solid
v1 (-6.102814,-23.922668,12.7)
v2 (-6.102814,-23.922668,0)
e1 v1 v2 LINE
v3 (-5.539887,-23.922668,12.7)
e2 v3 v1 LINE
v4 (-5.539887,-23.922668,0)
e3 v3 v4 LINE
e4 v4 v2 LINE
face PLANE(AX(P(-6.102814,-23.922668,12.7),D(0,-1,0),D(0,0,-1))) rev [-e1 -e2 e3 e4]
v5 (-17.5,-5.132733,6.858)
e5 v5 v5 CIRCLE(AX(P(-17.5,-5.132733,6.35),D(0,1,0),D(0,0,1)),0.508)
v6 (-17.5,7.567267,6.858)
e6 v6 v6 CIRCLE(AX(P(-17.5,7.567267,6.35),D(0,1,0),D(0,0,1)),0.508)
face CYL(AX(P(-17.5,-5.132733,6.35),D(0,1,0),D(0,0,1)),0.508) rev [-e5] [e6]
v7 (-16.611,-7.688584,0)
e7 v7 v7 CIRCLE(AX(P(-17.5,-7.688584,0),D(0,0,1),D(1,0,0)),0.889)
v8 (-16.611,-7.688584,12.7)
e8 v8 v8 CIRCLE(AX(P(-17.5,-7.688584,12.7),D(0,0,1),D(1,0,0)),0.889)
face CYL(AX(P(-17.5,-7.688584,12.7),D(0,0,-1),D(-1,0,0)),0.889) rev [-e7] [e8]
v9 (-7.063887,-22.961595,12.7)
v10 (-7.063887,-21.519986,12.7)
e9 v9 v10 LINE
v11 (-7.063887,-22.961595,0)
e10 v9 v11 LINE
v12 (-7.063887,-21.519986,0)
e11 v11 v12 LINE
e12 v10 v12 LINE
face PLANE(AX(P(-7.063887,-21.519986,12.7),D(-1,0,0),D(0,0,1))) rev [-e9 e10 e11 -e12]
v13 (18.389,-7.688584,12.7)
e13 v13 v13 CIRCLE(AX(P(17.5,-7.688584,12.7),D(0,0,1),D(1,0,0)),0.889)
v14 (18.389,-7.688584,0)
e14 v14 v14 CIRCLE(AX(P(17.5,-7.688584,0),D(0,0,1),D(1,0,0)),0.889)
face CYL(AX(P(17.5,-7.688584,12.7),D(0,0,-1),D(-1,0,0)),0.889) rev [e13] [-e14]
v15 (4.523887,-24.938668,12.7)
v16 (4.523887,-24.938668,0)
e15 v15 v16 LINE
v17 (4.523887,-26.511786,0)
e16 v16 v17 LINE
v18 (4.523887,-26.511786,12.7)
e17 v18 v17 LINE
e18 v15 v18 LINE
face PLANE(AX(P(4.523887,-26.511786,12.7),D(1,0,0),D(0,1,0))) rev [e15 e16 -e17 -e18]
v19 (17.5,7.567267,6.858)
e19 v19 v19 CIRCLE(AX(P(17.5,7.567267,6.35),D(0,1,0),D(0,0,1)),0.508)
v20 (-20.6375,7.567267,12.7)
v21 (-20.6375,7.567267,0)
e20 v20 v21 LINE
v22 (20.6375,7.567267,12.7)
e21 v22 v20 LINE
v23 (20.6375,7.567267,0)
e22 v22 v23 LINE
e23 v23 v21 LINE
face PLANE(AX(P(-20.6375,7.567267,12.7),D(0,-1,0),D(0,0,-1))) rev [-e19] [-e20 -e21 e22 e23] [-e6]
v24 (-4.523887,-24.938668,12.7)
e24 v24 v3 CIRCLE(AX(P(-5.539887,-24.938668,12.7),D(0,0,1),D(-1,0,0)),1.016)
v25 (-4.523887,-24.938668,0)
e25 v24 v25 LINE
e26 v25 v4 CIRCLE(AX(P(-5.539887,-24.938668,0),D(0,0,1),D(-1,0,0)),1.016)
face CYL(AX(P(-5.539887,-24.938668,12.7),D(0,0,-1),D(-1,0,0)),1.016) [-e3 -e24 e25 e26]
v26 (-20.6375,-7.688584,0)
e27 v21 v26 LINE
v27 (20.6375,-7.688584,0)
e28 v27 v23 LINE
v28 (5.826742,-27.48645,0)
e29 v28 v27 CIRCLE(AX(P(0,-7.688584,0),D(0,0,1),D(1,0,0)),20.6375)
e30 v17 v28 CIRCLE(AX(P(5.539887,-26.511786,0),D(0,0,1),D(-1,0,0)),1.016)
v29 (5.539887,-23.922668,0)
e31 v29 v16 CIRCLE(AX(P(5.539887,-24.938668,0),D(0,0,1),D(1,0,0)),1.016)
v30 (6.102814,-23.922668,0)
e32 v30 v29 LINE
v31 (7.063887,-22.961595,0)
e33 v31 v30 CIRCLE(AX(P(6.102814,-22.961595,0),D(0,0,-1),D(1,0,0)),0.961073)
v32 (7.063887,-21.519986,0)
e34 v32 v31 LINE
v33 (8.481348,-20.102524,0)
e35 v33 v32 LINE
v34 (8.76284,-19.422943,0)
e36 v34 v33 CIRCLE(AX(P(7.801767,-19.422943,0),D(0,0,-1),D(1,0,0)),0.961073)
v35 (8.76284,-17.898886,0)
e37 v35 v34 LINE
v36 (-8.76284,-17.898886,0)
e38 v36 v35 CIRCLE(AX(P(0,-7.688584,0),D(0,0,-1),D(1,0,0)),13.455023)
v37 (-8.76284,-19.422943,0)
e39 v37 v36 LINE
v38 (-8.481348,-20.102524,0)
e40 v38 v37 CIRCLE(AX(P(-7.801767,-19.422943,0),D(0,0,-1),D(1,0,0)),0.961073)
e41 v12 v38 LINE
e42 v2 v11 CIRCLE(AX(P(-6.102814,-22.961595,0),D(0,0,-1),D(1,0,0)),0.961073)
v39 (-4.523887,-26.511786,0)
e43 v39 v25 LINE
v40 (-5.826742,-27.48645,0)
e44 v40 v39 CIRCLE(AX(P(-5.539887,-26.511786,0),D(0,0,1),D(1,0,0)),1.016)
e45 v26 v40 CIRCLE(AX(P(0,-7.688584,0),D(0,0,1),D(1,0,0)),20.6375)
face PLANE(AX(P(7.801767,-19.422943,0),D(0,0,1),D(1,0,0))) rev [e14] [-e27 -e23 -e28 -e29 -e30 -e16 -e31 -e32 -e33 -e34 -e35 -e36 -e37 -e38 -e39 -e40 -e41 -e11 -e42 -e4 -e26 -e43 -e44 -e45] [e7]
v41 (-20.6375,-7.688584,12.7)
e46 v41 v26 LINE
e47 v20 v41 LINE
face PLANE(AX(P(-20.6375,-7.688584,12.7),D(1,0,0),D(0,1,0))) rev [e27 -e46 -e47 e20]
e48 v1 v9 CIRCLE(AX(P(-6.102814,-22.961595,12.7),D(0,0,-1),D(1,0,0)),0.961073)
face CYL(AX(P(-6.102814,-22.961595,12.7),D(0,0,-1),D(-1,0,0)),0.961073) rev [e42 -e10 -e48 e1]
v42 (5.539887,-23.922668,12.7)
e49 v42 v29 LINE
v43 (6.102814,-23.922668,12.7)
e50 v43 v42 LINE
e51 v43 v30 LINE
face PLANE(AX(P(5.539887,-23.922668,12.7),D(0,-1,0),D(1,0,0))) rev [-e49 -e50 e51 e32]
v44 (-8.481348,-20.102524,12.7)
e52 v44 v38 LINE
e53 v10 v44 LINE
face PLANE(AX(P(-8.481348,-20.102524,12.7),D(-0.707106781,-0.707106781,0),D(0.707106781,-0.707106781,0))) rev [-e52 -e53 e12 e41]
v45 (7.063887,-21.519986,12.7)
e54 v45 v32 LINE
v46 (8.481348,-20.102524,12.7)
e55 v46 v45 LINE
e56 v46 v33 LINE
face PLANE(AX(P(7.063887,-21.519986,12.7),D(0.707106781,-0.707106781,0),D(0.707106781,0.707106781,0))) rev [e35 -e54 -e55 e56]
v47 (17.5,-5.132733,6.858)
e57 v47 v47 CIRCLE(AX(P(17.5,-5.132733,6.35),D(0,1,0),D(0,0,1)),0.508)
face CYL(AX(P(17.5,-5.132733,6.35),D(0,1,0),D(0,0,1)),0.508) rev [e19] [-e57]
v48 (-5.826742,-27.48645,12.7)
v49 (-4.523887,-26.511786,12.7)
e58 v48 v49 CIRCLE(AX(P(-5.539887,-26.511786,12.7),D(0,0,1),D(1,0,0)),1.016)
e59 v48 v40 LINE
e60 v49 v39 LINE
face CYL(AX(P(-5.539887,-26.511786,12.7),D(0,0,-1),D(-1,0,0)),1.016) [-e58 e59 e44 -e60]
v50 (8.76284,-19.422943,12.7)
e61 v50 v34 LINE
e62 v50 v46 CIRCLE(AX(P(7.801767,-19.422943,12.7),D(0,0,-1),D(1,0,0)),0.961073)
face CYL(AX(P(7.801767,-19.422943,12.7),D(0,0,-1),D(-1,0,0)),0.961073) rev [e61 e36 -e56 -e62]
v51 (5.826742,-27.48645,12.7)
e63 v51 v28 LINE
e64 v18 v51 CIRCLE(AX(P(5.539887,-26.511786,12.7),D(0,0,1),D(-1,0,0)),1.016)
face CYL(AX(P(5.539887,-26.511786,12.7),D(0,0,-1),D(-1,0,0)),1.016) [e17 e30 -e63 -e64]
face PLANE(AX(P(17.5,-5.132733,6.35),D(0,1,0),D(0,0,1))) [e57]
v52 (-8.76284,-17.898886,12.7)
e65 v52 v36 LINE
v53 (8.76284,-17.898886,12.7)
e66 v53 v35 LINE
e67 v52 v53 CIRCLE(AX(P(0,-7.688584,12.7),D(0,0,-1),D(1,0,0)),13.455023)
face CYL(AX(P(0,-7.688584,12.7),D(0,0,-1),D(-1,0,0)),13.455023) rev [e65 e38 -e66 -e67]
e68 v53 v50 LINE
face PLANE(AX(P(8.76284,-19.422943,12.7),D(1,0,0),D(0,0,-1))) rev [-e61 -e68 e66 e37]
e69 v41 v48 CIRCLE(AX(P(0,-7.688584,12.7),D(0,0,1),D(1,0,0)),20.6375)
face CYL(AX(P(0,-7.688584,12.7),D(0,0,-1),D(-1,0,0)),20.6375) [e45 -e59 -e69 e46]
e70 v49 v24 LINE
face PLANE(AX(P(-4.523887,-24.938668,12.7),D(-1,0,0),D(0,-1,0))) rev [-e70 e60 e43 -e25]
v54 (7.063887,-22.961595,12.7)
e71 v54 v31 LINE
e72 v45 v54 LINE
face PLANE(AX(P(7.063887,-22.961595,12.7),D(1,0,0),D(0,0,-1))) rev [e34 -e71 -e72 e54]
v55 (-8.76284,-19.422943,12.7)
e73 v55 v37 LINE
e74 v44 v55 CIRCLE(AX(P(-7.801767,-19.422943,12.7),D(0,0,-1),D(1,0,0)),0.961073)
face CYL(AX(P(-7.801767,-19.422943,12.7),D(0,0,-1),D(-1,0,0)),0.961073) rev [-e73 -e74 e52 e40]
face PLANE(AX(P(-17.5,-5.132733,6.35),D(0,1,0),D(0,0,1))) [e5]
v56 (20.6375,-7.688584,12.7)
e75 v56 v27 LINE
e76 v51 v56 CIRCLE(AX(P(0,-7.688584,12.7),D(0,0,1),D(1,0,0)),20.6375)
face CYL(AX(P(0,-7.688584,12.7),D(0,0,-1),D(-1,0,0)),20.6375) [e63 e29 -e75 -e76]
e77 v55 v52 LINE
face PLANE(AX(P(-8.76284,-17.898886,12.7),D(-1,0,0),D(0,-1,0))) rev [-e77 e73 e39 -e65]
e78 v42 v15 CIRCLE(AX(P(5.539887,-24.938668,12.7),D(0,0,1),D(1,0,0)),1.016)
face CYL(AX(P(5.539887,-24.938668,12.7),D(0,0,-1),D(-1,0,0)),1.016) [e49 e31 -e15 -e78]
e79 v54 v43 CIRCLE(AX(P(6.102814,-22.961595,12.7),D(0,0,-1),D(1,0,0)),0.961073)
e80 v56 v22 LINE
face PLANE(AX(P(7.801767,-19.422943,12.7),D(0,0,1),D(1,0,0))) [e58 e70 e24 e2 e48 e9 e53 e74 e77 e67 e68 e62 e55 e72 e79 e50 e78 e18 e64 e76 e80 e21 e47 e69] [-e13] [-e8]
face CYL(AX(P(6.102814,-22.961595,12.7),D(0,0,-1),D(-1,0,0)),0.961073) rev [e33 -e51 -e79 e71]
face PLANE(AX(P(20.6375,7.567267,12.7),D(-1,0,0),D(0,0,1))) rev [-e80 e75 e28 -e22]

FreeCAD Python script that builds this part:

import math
import FreeCAD as App
import Part
import Sketcher
from FreeCAD import Vector
Q = App.Units.Quantity

doc = App.newDocument("Part")
body = doc.addObject("PartDesign::Body", "Body")

sketch1 = doc.addObject("Sketcher::SketchObject", "Sketch")
body.addObject(sketch1)
sketch1.AttachmentSupport = (doc.XY_Plane, [""])
sketch1.MapMode = "FlatFace"
sketch1.addGeometry(Part.LineSegment(Vector(-20.6, 7.6, 0), Vector(-20.6, -7.7, 0)), False)
sketch1.addGeometry(Part.ArcOfCircle(Part.Circle(Vector(0, -7.7, 0), Vector(0, 0, 1), 20.6), math.radians(-180), math.radians(-106)), False)
sketch1.addGeometry(Part.ArcOfCircle(Part.Circle(Vector(-5.5, -26.5, 0), Vector(0, 0, 1), 1), math.radians(-106), math.radians(0)), False)
sketch1.addGeometry(Part.LineSegment(Vector(-4.5, -26.5, 0), Vector(-4.5, -24.9, 0)), False)
sketch1.addGeometry(Part.ArcOfCircle(Part.Circle(Vector(-5.5, -24.9, 0), Vector(0, 0, 1), 1), math.radians(0), math.radians(90)), False)
sketch1.addGeometry(Part.LineSegment(Vector(-5.5, -23.9, 0), Vector(-6.1, -23.9, 0)), False)
sketch1.addGeometry(Part.ArcOfCircle(Part.Circle(Vector(-6.1, -23, 0), Vector(0, 0, 1), 1), math.radians(180), math.radians(270)), False)
sketch1.addGeometry(Part.LineSegment(Vector(-7.1, -23, 0), Vector(-7.1, -21.5, 0)), False)
sketch1.addGeometry(Part.LineSegment(Vector(-7.1, -21.5, 0), Vector(-8.5, -20.1, 0)), False)
sketch1.addGeometry(Part.ArcOfCircle(Part.Circle(Vector(-7.8, -19.4, 0), Vector(0, 0, 1), 1), math.radians(180), math.radians(225)), False)
sketch1.addGeometry(Part.LineSegment(Vector(-8.8, -19.4, 0), Vector(-8.8, -17.9, 0)), False)
sketch1.addGeometry(Part.ArcOfCircle(Part.Circle(Vector(0, -7.7, 0), Vector(0, 0, 1), 13.5), math.radians(-166), math.radians(-131)), False)
sketch1.addGeometry(Part.ArcOfCircle(Part.Circle(Vector(0, -7.7, 0), Vector(0, 0, 1), 13.5), math.radians(166), math.radians(194)), False)
sketch1.addGeometry(Part.ArcOfCircle(Part.Circle(Vector(0, -7.7, 0), Vector(0, 0, 1), 13.5), math.radians(14), math.radians(166)), False)
sketch1.addGeometry(Part.ArcOfCircle(Part.Circle(Vector(0, -7.7, 0), Vector(0, 0, 1), 13.5), math.radians(-14), math.radians(14)), False)
sketch1.addGeometry(Part.ArcOfCircle(Part.Circle(Vector(0, -7.7, 0), Vector(0, 0, 1), 13.5), math.radians(-49), math.radians(-14)), False)
sketch1.addGeometry(Part.LineSegment(Vector(8.8, -17.9, 0), Vector(8.8, -19.4, 0)), False)
sketch1.addGeometry(Part.ArcOfCircle(Part.Circle(Vector(7.8, -19.4, 0), Vector(0, 0, 1), 1), math.radians(-45), math.radians(0)), False)
sketch1.addGeometry(Part.LineSegment(Vector(8.5, -20.1, 0), Vector(7.1, -21.5, 0)), False)
sketch1.addGeometry(Part.LineSegment(Vector(7.1, -21.5, 0), Vector(7.1, -23, 0)), False)
sketch1.addGeometry(Part.ArcOfCircle(Part.Circle(Vector(6.1, -23, 0), Vector(0, 0, 1), 1), math.radians(-90), math.radians(0)), False)
sketch1.addGeometry(Part.LineSegment(Vector(6.1, -23.9, 0), Vector(5.5, -23.9, 0)), False)
sketch1.addGeometry(Part.ArcOfCircle(Part.Circle(Vector(5.5, -24.9, 0), Vector(0, 0, 1), 1), math.radians(90), math.radians(180)), False)
sketch1.addGeometry(Part.LineSegment(Vector(4.5, -24.9, 0), Vector(4.5, -26.5, 0)), False)
sketch1.addGeometry(Part.ArcOfCircle(Part.Circle(Vector(5.5, -26.5, 0), Vector(0, 0, 1), 1), math.radians(180), math.radians(286)), False)
sketch1.addGeometry(Part.ArcOfCircle(Part.Circle(Vector(0, -7.7, 0), Vector(0, 0, 1), 20.6), math.radians(-74), math.radians(0)), False)
sketch1.addGeometry(Part.LineSegment(Vector(20.6, -7.7, 0), Vector(20.6, 7.6, 0)), False)
sketch1.addGeometry(Part.LineSegment(Vector(20.6, 7.6, 0), Vector(-20.6, 7.6, 0)), False)
sketch1.addGeometry(Part.Circle(Vector(17.5, -7.7, 0), Vector(0, 0, 1), 0.9), False)
sketch1.addGeometry(Part.Circle(Vector(-17.5, -7.7, 0), Vector(0, 0, 1), 0.9), False)
sketch1.addConstraint(Sketcher.Constraint("Tangent", 0, 2, 1, 1))
sketch1.addConstraint(Sketcher.Constraint("Tangent", 1, 2, 2, 1))
sketch1.addConstraint(Sketcher.Constraint("Tangent", 2, 2, 3, 1))
sketch1.addConstraint(Sketcher.Constraint("Tangent", 3, 2, 4, 1))
sketch1.addConstraint(Sketcher.Constraint("Tangent", 4, 2, 5, 1))
sketch1.addConstraint(Sketcher.Constraint("Tangent", 5, 2, 6, 2))
sketch1.addConstraint(Sketcher.Constraint("Tangent", 6, 1, 7, 1))
sketch1.addConstraint(Sketcher.Constraint("Coincident", 7, 2, 8, 1))
sketch1.addConstraint(Sketcher.Constraint("Tangent", 8, 2, 9, 2))
sketch1.addConstraint(Sketcher.Constraint("Tangent", 9, 1, 10, 1))
sketch1.addConstraint(Sketcher.Constraint("Coincident", 10, 2, 11, 2))
sketch1.addConstraint(Sketcher.Constraint("Tangent", 11, 1, 12, 2))
sketch1.addConstraint(Sketcher.Constraint("Tangent", 12, 1, 13, 2))
sketch1.addConstraint(Sketcher.Constraint("Tangent", 13, 1, 14, 2))
sketch1.addConstraint(Sketcher.Constraint("Tangent", 14, 1, 15, 2))
sketch1.addConstraint(Sketcher.Constraint("Coincident", 15, 1, 16, 1))
sketch1.addConstraint(Sketcher.Constraint("Tangent", 16, 2, 17, 2))
sketch1.addConstraint(Sketcher.Constraint("Tangent", 17, 1, 18, 1))
sketch1.addConstraint(Sketcher.Constraint("Coincident", 18, 2, 19, 1))
sketch1.addConstraint(Sketcher.Constraint("Tangent", 19, 2, 20, 2))
sketch1.addConstraint(Sketcher.Constraint("Tangent", 20, 1, 21, 1))
sketch1.addConstraint(Sketcher.Constraint("Tangent", 21, 2, 22, 1))
sketch1.addConstraint(Sketcher.Constraint("Tangent", 22, 2, 23, 1))
sketch1.addConstraint(Sketcher.Constraint("Tangent", 23, 2, 24, 1))
sketch1.addConstraint(Sketcher.Constraint("Tangent", 24, 2, 25, 1))
sketch1.addConstraint(Sketcher.Constraint("Tangent", 25, 2, 26, 1))
sketch1.addConstraint(Sketcher.Constraint("Coincident", 26, 2, 27, 1))
sketch1.addConstraint(Sketcher.Constraint("Coincident", 27, 2, 0, 1))
sketch1.addConstraint(Sketcher.Constraint("Vertical", 0))
sketch1.addConstraint(Sketcher.Constraint("Vertical", 3))
sketch1.addConstraint(Sketcher.Constraint("Horizontal", 5))
sketch1.addConstraint(Sketcher.Constraint("Vertical", 7))
sketch1.addConstraint(Sketcher.Constraint("Vertical", 10))
sketch1.addConstraint(Sketcher.Constraint("Vertical", 16))
sketch1.addConstraint(Sketcher.Constraint("Vertical", 19))
sketch1.addConstraint(Sketcher.Constraint("Horizontal", 21))
sketch1.addConstraint(Sketcher.Constraint("Vertical", 23))
sketch1.addConstraint(Sketcher.Constraint("Vertical", 26))
sketch1.addConstraint(Sketcher.Constraint("Horizontal", 27))
sketch1.addConstraint(Sketcher.Constraint("Coincident", 11, 3, 1, 3))
sketch1.addConstraint(Sketcher.Constraint("Coincident", 13, 3, 1, 3))
sketch1.addConstraint(Sketcher.Constraint("Coincident", 15, 3, 1, 3))
sketch1.addConstraint(Sketcher.Constraint("Coincident", 25, 3, 1, 3))
sketch1.addConstraint(Sketcher.Constraint("Equal", 2, 4))
sketch1.addConstraint(Sketcher.Constraint("Equal", 6, 9))
sketch1.addConstraint(Sketcher.Constraint("Equal", 9, 17))
sketch1.addConstraint(Sketcher.Constraint("Equal", 17, 20))
sketch1.addConstraint(Sketcher.Constraint("Equal", 4, 22))
sketch1.addConstraint(Sketcher.Constraint("Equal", 22, 24))
sketch1.addConstraint(Sketcher.Constraint("Equal", 1, 25))
sketch1.addConstraint(Sketcher.Constraint("Equal", 28, 29))
sketch1.addConstraint(Sketcher.Constraint("Symmetric", 9, 3, 17, 3, -2))
sketch1.addConstraint(Sketcher.Constraint("Symmetric", 6, 3, 20, 3, -2))
sketch1.addConstraint(Sketcher.Constraint("Symmetric", 2, 3, 24, 3, -2))
sketch1.addConstraint(Sketcher.Constraint("Symmetric", 28, 3, 29, 3, -2))
sketch1.addConstraint(Sketcher.Constraint("Perpendicular", 8, 18))
sketch1.addConstraint(Sketcher.Constraint("Horizontal", 25, 3, 28, 3))
sketch1.addConstraint(Sketcher.Constraint("Horizontal", 12, 1, 13, 1))
sketch1.addConstraint(Sketcher.Constraint("Horizontal", 11, 1, 14, 1))
sketch1.addConstraint(Sketcher.Constraint("Horizontal", 8, 2, 17, 1))
sketch1.addConstraint(Sketcher.Constraint("Vertical", 11, 1, 12, 1))
sketch1.addConstraint(Sketcher.Constraint("Diameter", 28, Q("0.07 in")))
sketch1.addConstraint(Sketcher.Constraint("Radius", 2, Q("0.04 in")))
sketch1.addConstraint(Sketcher.Constraint("Radius", 1, Q("0.8125 in")))
sketch1.addConstraint(Sketcher.Constraint("DistanceX", 6, 1, 3, 2, Q("0.1 in")))
sketch1.addConstraint(Sketcher.Constraint("DistanceY", 6, 3, -1, 1, Q("0.9039998 in")))
sketch1.addConstraint(Sketcher.Constraint("DistanceY", 1, 3, -1, 1, Q("0.3027002 in")))
sketch1.addConstraint(Sketcher.Constraint("Radius", 6, 0.961073))
sketch1.addConstraint(Sketcher.Constraint("Radius", 11, 13.455023))
sketch1.addConstraint(Sketcher.Constraint("DistanceY", 0, 2, 0, 1, 15.255851))
sketch1.addConstraint(Sketcher.Constraint("DistanceY", 7, 1, 7, 2, 1.44161))
sketch1.addConstraint(Sketcher.Constraint("DistanceX", -1, 1, 28, 3, 17.5))
sketch1.addConstraint(Sketcher.Constraint("DistanceY", 2, 3, 1, 3, 18.823202))
sketch1.addConstraint(Sketcher.Constraint("DistanceY", 7, 2, 10, 2, 3.621099))
sketch1.addConstraint(Sketcher.Constraint("DistanceX", 11, 1, -1, 1, 13.02777))
pad1 = doc.addObject("PartDesign::Pad", "Pad")
body.addObject(pad1)
pad1.Profile = sketch1
pad1.Length = Q("0.5 in")

sketch2 = doc.addObject("Sketcher::SketchObject", "Sketch001")
body.addObject(sketch2)
sketch2.AttachmentSupport = (doc.XZ_Plane, [""])
sketch2.MapMode = "FlatFace"
sketch2.AttachmentOffset = App.Placement(Vector(0, 0, -7.567267), App.Rotation())
sketch2.addGeometry(Part.Circle(Vector(-17.5, 6.3, 0), Vector(0, 0, 1), 0.5), False)
sketch2.addGeometry(Part.Circle(Vector(17.5, 6.3, 0), Vector(0, 0, 1), 0.5), False)
sketch2.addConstraint(Sketcher.Constraint("Equal", 0, 1))
sketch2.addConstraint(Sketcher.Constraint("Symmetric", 0, 3, 1, 3, -2))
sketch2.addConstraint(Sketcher.Constraint("Diameter", 0, Q("0.04 in")))
sketch2.addConstraint(Sketcher.Constraint("DistanceY", -1, 1, 0, 3, Q("0.25 in")))
sketch2.addConstraint(Sketcher.Constraint("DistanceX", 0, 3, -1, 1, 17.5))
pocket1 = doc.addObject("PartDesign::Pocket", "Pocket")
body.addObject(pocket1)
pocket1.Profile = sketch2
pocket1.Length = Q("0.5 in")
pocket1.Reversed = True

doc.recompute()
